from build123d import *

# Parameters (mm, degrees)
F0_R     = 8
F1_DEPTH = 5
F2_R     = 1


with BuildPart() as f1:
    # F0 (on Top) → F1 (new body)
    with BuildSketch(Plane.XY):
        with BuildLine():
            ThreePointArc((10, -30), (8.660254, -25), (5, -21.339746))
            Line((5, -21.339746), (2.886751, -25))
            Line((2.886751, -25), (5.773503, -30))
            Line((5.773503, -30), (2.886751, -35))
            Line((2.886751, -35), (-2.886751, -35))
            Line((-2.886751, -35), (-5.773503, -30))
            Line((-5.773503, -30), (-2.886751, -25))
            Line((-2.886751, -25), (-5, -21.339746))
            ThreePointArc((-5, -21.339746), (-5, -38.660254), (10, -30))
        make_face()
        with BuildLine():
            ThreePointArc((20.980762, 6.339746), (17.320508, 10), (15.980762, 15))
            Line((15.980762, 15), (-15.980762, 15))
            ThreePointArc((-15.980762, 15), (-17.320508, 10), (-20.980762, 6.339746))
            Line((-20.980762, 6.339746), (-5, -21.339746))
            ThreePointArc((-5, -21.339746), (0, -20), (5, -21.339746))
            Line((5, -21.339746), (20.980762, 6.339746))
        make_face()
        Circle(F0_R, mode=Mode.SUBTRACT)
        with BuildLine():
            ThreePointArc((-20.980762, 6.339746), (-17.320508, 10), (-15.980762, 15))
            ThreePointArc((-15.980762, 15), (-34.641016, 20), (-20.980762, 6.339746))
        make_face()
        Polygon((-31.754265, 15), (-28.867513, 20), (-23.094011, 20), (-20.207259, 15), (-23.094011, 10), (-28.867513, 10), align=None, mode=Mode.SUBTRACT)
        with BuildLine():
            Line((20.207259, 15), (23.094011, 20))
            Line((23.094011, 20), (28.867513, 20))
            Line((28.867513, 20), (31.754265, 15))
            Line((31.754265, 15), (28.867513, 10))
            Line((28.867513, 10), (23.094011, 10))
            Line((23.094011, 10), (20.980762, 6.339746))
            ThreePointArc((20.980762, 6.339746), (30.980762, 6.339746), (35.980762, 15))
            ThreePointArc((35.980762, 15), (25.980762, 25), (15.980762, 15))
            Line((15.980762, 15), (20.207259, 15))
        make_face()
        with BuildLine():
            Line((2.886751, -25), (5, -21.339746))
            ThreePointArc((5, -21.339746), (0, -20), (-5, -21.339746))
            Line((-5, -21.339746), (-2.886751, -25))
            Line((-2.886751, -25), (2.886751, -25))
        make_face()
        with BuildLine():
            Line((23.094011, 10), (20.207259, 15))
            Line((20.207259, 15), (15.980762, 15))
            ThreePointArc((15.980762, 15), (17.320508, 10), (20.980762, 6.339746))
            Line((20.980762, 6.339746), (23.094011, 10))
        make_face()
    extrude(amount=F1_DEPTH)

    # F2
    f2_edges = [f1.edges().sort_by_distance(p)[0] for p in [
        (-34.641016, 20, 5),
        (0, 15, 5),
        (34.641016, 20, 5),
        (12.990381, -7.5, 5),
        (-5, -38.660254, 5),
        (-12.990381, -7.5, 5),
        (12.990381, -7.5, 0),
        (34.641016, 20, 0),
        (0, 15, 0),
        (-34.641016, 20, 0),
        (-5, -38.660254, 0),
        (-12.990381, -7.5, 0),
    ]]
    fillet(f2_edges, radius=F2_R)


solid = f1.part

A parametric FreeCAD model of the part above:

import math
import FreeCAD as App
import Part
import Sketcher
from FreeCAD import Vector
Q = App.Units.Quantity


def edges_at(feature, points):
    """Names of the edges that pass closest to the given points."""
    edges = feature.Shape.Edges
    near = lambda p: min(range(len(edges)), key=lambda i: edges[i].distToShape(Part.Vertex(*p))[0])
    return sorted({f"Edge{near(p) + 1}" for p in points})


def add_polygon(sketch, points):
    """Adds a closed chain of lines whose ends are joined by coincident constraints."""
    first, n = sketch.GeometryCount, len(points)
    for a, b in zip(points, points[1:] + points[:1]):
        sketch.addGeometry(Part.LineSegment(App.Vector(*a, 0), App.Vector(*b, 0)), False)
    for i in range(n):
        sketch.addConstraint(Sketcher.Constraint("Coincident", first + i, 2, first + (i + 1) % n, 1))

doc = App.newDocument("Part")
body = doc.addObject("PartDesign::Body", "Body")

# Sketch on XY plane
sketch1 = body.newObject("Sketcher::SketchObject", "Sketch")
sketch1.AttachmentSupport = (doc.getObject("XY_Plane"), [""])
sketch1.MapMode = "FlatFace"
sketch1.addGeometry(Part.ArcOfCircle(Part.Circle(Vector(0, -30, 0), Vector(0, 0, 1), 10), math.radians(0.000001), math.radians(60)), False)  # 0
sketch1.addGeometry(Part.LineSegment(Vector(5, -21.339746, 0), Vector(20.980762, 6.339746, 0)), False)  # 1
sketch1.addGeometry(Part.ArcOfCircle(Part.Circle(Vector(25.980762, 15, 0), Vector(0, 0, 1), 10), math.radians(-120), math.radians(0)), False)  # 2
sketch1.addGeometry(Part.ArcOfCircle(Part.Circle(Vector(25.980762, 15, 0), Vector(0, 0, 1), 10), math.radians(0), math.radians(180)), False)  # 3
sketch1.addGeometry(Part.LineSegment(Vector(15.980762, 15, 0), Vector(-15.980762, 15, 0)), False)  # 4
sketch1.addGeometry(Part.ArcOfCircle(Part.Circle(Vector(-25.980762, 15, 0), Vector(0, 0, 1), 10), math.radians(0), math.radians(300)), False)  # 5
sketch1.addGeometry(Part.LineSegment(Vector(-20.980762, 6.339746, 0), Vector(-5, -21.339746, 0)), False)  # 6
sketch1.addGeometry(Part.ArcOfCircle(Part.Circle(Vector(0, -30, 0), Vector(0, 0, 1), 10), math.radians(120), math.radians(360)), False)  # 7
add_polygon(sketch1, [(2.886751, -25), (5.773503, -30), (2.886751, -35), (-2.886751, -35), (-5.773503, -30), (-2.886751, -25)])  # lines 8-13
add_polygon(sketch1, [(-31.754265, 15), (-28.867513, 20), (-23.094011, 20), (-20.207259, 15), (-23.094011, 10), (-28.867513, 10)])  # lines 14-19
sketch1.addGeometry(Part.Circle(Vector(0, 0, 0), Vector(0, 0, 1), 8), False)  # 20
add_polygon(sketch1, [(23.094011, 10), (20.207259, 15), (23.094011, 20), (28.867513, 20), (31.754265, 15), (28.867513, 10)])  # lines 21-26
sketch1.addConstraint([
    Sketcher.Constraint("Coincident", 0, 2, 1, 1),
    Sketcher.Constraint("Coincident", 1, 2, 2, 1),
    Sketcher.Constraint("Tangent", 2, 2, 3, 1),
    Sketcher.Constraint("Coincident", 3, 2, 4, 1),
    Sketcher.Constraint("Coincident", 4, 2, 5, 1),
    Sketcher.Constraint("Coincident", 5, 2, 6, 1),
    Sketcher.Constraint("Coincident", 6, 2, 7, 1),
    Sketcher.Constraint("Tangent", 7, 2, 0, 1),
    Sketcher.Constraint("Horizontal", 4),
    Sketcher.Constraint("Horizontal", 10),
    Sketcher.Constraint("Horizontal", 13),
    Sketcher.Constraint("Horizontal", 15),
    Sketcher.Constraint("Horizontal", 18),
    Sketcher.Constraint("Horizontal", 23),
    Sketcher.Constraint("Horizontal", 26),
    Sketcher.Constraint("Coincident", 20, 3, -1, 1),
    Sketcher.Constraint("Equal", 0, 2),
    Sketcher.Constraint("Equal", 2, 3),
    Sketcher.Constraint("Equal", 3, 5),
    Sketcher.Constraint("Equal", 5, 7),
    Sketcher.Constraint("Symmetric", 2, 3, 5, 3, -2),
    Sketcher.Constraint("Symmetric", 0, 2, 6, 2, -2),
    Sketcher.Constraint("Symmetric", 8, 2, 11, 2, -2),
    Sketcher.Constraint("Symmetric", 16, 2, 21, 2, -2),
    Sketcher.Constraint("Symmetric", 15, 2, 22, 2, -2),
    Sketcher.Constraint("Symmetric", 19, 2, 24, 2, -2),
    Sketcher.Constraint("Symmetric", 18, 2, 25, 2, -2),
    Sketcher.Constraint("Parallel", 6, 8),
    Sketcher.Constraint("Parallel", 1, 9),
    Sketcher.Constraint("Parallel", 8, 11),
    Sketcher.Constraint("Parallel", 9, 12),
    Sketcher.Constraint("Parallel", 12, 14),
    Sketcher.Constraint("Parallel", 11, 16),
    Sketcher.Constraint("Parallel", 14, 17),
    Sketcher.Constraint("Parallel", 16, 19),
    Sketcher.Constraint("Parallel", 19, 21),
    Sketcher.Constraint("Parallel", 17, 22),
    Sketcher.Constraint("Parallel", 21, 24),
    Sketcher.Constraint("Horizontal", 5, 3, 2, 2),
    Sketcher.Constraint("Horizontal", 2, 2, 3, 2),
    Sketcher.Constraint("Horizontal", 0, 3, 7, 2),
    Sketcher.Constraint("Horizontal", 7, 2, 8, 2),
    Sketcher.Constraint("Horizontal", 4, 2, 16, 2),
    Sketcher.Constraint("Horizontal", 16, 2, 19, 2),
    Sketcher.Constraint("Vertical", 10, 2, 12, 2),
    Sketcher.Constraint("Vertical", 15, 2, 17, 2),
    Sketcher.Constraint("Equal", 13, 15),
    Sketcher.Constraint("Equal", 12, 14),
    Sketcher.Constraint("Diameter", 20, Q("16 mm")),
    Sketcher.Constraint("Radius", 0, Q("10 mm")),
    Sketcher.Constraint("Angle", 1, Q("60 deg")),
    Sketcher.Constraint("DistanceY", 0, 3, -1, 1, Q("30 mm")),
    Sketcher.Constraint("DistanceY", -1, 1, 2, 3, Q("15 mm")),
    Sketcher.Constraint("DistanceX", -1, 1, 0, 2, Q("5 mm")),
    Sketcher.Constraint("DistanceY", 9, 2, -1, 1, Q("35 mm")),
    Sketcher.Constraint("DistanceX", 1, 2, 3, 3, Q("5 mm")),
    Sketcher.Constraint("DistanceX", 10, 2, 10, 1, Q("5.773502 mm")),
    Sketcher.Constraint("DistanceX", 15, 2, -1, 1, Q("23.094011 mm")),
])
pad1 = body.newObject("PartDesign::Pad", "Pad")
pad1.Profile = sketch1
pad1.Length = 5
doc.recompute()

fillet = body.newObject("PartDesign::Fillet", "Fillet")
fillet.Base = (pad1, edges_at(pad1, [
    (-34.641, 20, 5),
    (0, 15, 5),
    (25.981, 25, 5),
    (12.99, -7.5, 5),
    (-5, -38.66, 5),
    (-12.99, -7.5, 5),
    (12.99, -7.5, 0),
    (25.981, 25, 0),
    (0, 15, 0),
    (-34.641, 20, 0),
    (-5, -38.66, 0),
    (-12.99, -7.5, 0),
]))
fillet.Radius = 1

doc.recompute()
